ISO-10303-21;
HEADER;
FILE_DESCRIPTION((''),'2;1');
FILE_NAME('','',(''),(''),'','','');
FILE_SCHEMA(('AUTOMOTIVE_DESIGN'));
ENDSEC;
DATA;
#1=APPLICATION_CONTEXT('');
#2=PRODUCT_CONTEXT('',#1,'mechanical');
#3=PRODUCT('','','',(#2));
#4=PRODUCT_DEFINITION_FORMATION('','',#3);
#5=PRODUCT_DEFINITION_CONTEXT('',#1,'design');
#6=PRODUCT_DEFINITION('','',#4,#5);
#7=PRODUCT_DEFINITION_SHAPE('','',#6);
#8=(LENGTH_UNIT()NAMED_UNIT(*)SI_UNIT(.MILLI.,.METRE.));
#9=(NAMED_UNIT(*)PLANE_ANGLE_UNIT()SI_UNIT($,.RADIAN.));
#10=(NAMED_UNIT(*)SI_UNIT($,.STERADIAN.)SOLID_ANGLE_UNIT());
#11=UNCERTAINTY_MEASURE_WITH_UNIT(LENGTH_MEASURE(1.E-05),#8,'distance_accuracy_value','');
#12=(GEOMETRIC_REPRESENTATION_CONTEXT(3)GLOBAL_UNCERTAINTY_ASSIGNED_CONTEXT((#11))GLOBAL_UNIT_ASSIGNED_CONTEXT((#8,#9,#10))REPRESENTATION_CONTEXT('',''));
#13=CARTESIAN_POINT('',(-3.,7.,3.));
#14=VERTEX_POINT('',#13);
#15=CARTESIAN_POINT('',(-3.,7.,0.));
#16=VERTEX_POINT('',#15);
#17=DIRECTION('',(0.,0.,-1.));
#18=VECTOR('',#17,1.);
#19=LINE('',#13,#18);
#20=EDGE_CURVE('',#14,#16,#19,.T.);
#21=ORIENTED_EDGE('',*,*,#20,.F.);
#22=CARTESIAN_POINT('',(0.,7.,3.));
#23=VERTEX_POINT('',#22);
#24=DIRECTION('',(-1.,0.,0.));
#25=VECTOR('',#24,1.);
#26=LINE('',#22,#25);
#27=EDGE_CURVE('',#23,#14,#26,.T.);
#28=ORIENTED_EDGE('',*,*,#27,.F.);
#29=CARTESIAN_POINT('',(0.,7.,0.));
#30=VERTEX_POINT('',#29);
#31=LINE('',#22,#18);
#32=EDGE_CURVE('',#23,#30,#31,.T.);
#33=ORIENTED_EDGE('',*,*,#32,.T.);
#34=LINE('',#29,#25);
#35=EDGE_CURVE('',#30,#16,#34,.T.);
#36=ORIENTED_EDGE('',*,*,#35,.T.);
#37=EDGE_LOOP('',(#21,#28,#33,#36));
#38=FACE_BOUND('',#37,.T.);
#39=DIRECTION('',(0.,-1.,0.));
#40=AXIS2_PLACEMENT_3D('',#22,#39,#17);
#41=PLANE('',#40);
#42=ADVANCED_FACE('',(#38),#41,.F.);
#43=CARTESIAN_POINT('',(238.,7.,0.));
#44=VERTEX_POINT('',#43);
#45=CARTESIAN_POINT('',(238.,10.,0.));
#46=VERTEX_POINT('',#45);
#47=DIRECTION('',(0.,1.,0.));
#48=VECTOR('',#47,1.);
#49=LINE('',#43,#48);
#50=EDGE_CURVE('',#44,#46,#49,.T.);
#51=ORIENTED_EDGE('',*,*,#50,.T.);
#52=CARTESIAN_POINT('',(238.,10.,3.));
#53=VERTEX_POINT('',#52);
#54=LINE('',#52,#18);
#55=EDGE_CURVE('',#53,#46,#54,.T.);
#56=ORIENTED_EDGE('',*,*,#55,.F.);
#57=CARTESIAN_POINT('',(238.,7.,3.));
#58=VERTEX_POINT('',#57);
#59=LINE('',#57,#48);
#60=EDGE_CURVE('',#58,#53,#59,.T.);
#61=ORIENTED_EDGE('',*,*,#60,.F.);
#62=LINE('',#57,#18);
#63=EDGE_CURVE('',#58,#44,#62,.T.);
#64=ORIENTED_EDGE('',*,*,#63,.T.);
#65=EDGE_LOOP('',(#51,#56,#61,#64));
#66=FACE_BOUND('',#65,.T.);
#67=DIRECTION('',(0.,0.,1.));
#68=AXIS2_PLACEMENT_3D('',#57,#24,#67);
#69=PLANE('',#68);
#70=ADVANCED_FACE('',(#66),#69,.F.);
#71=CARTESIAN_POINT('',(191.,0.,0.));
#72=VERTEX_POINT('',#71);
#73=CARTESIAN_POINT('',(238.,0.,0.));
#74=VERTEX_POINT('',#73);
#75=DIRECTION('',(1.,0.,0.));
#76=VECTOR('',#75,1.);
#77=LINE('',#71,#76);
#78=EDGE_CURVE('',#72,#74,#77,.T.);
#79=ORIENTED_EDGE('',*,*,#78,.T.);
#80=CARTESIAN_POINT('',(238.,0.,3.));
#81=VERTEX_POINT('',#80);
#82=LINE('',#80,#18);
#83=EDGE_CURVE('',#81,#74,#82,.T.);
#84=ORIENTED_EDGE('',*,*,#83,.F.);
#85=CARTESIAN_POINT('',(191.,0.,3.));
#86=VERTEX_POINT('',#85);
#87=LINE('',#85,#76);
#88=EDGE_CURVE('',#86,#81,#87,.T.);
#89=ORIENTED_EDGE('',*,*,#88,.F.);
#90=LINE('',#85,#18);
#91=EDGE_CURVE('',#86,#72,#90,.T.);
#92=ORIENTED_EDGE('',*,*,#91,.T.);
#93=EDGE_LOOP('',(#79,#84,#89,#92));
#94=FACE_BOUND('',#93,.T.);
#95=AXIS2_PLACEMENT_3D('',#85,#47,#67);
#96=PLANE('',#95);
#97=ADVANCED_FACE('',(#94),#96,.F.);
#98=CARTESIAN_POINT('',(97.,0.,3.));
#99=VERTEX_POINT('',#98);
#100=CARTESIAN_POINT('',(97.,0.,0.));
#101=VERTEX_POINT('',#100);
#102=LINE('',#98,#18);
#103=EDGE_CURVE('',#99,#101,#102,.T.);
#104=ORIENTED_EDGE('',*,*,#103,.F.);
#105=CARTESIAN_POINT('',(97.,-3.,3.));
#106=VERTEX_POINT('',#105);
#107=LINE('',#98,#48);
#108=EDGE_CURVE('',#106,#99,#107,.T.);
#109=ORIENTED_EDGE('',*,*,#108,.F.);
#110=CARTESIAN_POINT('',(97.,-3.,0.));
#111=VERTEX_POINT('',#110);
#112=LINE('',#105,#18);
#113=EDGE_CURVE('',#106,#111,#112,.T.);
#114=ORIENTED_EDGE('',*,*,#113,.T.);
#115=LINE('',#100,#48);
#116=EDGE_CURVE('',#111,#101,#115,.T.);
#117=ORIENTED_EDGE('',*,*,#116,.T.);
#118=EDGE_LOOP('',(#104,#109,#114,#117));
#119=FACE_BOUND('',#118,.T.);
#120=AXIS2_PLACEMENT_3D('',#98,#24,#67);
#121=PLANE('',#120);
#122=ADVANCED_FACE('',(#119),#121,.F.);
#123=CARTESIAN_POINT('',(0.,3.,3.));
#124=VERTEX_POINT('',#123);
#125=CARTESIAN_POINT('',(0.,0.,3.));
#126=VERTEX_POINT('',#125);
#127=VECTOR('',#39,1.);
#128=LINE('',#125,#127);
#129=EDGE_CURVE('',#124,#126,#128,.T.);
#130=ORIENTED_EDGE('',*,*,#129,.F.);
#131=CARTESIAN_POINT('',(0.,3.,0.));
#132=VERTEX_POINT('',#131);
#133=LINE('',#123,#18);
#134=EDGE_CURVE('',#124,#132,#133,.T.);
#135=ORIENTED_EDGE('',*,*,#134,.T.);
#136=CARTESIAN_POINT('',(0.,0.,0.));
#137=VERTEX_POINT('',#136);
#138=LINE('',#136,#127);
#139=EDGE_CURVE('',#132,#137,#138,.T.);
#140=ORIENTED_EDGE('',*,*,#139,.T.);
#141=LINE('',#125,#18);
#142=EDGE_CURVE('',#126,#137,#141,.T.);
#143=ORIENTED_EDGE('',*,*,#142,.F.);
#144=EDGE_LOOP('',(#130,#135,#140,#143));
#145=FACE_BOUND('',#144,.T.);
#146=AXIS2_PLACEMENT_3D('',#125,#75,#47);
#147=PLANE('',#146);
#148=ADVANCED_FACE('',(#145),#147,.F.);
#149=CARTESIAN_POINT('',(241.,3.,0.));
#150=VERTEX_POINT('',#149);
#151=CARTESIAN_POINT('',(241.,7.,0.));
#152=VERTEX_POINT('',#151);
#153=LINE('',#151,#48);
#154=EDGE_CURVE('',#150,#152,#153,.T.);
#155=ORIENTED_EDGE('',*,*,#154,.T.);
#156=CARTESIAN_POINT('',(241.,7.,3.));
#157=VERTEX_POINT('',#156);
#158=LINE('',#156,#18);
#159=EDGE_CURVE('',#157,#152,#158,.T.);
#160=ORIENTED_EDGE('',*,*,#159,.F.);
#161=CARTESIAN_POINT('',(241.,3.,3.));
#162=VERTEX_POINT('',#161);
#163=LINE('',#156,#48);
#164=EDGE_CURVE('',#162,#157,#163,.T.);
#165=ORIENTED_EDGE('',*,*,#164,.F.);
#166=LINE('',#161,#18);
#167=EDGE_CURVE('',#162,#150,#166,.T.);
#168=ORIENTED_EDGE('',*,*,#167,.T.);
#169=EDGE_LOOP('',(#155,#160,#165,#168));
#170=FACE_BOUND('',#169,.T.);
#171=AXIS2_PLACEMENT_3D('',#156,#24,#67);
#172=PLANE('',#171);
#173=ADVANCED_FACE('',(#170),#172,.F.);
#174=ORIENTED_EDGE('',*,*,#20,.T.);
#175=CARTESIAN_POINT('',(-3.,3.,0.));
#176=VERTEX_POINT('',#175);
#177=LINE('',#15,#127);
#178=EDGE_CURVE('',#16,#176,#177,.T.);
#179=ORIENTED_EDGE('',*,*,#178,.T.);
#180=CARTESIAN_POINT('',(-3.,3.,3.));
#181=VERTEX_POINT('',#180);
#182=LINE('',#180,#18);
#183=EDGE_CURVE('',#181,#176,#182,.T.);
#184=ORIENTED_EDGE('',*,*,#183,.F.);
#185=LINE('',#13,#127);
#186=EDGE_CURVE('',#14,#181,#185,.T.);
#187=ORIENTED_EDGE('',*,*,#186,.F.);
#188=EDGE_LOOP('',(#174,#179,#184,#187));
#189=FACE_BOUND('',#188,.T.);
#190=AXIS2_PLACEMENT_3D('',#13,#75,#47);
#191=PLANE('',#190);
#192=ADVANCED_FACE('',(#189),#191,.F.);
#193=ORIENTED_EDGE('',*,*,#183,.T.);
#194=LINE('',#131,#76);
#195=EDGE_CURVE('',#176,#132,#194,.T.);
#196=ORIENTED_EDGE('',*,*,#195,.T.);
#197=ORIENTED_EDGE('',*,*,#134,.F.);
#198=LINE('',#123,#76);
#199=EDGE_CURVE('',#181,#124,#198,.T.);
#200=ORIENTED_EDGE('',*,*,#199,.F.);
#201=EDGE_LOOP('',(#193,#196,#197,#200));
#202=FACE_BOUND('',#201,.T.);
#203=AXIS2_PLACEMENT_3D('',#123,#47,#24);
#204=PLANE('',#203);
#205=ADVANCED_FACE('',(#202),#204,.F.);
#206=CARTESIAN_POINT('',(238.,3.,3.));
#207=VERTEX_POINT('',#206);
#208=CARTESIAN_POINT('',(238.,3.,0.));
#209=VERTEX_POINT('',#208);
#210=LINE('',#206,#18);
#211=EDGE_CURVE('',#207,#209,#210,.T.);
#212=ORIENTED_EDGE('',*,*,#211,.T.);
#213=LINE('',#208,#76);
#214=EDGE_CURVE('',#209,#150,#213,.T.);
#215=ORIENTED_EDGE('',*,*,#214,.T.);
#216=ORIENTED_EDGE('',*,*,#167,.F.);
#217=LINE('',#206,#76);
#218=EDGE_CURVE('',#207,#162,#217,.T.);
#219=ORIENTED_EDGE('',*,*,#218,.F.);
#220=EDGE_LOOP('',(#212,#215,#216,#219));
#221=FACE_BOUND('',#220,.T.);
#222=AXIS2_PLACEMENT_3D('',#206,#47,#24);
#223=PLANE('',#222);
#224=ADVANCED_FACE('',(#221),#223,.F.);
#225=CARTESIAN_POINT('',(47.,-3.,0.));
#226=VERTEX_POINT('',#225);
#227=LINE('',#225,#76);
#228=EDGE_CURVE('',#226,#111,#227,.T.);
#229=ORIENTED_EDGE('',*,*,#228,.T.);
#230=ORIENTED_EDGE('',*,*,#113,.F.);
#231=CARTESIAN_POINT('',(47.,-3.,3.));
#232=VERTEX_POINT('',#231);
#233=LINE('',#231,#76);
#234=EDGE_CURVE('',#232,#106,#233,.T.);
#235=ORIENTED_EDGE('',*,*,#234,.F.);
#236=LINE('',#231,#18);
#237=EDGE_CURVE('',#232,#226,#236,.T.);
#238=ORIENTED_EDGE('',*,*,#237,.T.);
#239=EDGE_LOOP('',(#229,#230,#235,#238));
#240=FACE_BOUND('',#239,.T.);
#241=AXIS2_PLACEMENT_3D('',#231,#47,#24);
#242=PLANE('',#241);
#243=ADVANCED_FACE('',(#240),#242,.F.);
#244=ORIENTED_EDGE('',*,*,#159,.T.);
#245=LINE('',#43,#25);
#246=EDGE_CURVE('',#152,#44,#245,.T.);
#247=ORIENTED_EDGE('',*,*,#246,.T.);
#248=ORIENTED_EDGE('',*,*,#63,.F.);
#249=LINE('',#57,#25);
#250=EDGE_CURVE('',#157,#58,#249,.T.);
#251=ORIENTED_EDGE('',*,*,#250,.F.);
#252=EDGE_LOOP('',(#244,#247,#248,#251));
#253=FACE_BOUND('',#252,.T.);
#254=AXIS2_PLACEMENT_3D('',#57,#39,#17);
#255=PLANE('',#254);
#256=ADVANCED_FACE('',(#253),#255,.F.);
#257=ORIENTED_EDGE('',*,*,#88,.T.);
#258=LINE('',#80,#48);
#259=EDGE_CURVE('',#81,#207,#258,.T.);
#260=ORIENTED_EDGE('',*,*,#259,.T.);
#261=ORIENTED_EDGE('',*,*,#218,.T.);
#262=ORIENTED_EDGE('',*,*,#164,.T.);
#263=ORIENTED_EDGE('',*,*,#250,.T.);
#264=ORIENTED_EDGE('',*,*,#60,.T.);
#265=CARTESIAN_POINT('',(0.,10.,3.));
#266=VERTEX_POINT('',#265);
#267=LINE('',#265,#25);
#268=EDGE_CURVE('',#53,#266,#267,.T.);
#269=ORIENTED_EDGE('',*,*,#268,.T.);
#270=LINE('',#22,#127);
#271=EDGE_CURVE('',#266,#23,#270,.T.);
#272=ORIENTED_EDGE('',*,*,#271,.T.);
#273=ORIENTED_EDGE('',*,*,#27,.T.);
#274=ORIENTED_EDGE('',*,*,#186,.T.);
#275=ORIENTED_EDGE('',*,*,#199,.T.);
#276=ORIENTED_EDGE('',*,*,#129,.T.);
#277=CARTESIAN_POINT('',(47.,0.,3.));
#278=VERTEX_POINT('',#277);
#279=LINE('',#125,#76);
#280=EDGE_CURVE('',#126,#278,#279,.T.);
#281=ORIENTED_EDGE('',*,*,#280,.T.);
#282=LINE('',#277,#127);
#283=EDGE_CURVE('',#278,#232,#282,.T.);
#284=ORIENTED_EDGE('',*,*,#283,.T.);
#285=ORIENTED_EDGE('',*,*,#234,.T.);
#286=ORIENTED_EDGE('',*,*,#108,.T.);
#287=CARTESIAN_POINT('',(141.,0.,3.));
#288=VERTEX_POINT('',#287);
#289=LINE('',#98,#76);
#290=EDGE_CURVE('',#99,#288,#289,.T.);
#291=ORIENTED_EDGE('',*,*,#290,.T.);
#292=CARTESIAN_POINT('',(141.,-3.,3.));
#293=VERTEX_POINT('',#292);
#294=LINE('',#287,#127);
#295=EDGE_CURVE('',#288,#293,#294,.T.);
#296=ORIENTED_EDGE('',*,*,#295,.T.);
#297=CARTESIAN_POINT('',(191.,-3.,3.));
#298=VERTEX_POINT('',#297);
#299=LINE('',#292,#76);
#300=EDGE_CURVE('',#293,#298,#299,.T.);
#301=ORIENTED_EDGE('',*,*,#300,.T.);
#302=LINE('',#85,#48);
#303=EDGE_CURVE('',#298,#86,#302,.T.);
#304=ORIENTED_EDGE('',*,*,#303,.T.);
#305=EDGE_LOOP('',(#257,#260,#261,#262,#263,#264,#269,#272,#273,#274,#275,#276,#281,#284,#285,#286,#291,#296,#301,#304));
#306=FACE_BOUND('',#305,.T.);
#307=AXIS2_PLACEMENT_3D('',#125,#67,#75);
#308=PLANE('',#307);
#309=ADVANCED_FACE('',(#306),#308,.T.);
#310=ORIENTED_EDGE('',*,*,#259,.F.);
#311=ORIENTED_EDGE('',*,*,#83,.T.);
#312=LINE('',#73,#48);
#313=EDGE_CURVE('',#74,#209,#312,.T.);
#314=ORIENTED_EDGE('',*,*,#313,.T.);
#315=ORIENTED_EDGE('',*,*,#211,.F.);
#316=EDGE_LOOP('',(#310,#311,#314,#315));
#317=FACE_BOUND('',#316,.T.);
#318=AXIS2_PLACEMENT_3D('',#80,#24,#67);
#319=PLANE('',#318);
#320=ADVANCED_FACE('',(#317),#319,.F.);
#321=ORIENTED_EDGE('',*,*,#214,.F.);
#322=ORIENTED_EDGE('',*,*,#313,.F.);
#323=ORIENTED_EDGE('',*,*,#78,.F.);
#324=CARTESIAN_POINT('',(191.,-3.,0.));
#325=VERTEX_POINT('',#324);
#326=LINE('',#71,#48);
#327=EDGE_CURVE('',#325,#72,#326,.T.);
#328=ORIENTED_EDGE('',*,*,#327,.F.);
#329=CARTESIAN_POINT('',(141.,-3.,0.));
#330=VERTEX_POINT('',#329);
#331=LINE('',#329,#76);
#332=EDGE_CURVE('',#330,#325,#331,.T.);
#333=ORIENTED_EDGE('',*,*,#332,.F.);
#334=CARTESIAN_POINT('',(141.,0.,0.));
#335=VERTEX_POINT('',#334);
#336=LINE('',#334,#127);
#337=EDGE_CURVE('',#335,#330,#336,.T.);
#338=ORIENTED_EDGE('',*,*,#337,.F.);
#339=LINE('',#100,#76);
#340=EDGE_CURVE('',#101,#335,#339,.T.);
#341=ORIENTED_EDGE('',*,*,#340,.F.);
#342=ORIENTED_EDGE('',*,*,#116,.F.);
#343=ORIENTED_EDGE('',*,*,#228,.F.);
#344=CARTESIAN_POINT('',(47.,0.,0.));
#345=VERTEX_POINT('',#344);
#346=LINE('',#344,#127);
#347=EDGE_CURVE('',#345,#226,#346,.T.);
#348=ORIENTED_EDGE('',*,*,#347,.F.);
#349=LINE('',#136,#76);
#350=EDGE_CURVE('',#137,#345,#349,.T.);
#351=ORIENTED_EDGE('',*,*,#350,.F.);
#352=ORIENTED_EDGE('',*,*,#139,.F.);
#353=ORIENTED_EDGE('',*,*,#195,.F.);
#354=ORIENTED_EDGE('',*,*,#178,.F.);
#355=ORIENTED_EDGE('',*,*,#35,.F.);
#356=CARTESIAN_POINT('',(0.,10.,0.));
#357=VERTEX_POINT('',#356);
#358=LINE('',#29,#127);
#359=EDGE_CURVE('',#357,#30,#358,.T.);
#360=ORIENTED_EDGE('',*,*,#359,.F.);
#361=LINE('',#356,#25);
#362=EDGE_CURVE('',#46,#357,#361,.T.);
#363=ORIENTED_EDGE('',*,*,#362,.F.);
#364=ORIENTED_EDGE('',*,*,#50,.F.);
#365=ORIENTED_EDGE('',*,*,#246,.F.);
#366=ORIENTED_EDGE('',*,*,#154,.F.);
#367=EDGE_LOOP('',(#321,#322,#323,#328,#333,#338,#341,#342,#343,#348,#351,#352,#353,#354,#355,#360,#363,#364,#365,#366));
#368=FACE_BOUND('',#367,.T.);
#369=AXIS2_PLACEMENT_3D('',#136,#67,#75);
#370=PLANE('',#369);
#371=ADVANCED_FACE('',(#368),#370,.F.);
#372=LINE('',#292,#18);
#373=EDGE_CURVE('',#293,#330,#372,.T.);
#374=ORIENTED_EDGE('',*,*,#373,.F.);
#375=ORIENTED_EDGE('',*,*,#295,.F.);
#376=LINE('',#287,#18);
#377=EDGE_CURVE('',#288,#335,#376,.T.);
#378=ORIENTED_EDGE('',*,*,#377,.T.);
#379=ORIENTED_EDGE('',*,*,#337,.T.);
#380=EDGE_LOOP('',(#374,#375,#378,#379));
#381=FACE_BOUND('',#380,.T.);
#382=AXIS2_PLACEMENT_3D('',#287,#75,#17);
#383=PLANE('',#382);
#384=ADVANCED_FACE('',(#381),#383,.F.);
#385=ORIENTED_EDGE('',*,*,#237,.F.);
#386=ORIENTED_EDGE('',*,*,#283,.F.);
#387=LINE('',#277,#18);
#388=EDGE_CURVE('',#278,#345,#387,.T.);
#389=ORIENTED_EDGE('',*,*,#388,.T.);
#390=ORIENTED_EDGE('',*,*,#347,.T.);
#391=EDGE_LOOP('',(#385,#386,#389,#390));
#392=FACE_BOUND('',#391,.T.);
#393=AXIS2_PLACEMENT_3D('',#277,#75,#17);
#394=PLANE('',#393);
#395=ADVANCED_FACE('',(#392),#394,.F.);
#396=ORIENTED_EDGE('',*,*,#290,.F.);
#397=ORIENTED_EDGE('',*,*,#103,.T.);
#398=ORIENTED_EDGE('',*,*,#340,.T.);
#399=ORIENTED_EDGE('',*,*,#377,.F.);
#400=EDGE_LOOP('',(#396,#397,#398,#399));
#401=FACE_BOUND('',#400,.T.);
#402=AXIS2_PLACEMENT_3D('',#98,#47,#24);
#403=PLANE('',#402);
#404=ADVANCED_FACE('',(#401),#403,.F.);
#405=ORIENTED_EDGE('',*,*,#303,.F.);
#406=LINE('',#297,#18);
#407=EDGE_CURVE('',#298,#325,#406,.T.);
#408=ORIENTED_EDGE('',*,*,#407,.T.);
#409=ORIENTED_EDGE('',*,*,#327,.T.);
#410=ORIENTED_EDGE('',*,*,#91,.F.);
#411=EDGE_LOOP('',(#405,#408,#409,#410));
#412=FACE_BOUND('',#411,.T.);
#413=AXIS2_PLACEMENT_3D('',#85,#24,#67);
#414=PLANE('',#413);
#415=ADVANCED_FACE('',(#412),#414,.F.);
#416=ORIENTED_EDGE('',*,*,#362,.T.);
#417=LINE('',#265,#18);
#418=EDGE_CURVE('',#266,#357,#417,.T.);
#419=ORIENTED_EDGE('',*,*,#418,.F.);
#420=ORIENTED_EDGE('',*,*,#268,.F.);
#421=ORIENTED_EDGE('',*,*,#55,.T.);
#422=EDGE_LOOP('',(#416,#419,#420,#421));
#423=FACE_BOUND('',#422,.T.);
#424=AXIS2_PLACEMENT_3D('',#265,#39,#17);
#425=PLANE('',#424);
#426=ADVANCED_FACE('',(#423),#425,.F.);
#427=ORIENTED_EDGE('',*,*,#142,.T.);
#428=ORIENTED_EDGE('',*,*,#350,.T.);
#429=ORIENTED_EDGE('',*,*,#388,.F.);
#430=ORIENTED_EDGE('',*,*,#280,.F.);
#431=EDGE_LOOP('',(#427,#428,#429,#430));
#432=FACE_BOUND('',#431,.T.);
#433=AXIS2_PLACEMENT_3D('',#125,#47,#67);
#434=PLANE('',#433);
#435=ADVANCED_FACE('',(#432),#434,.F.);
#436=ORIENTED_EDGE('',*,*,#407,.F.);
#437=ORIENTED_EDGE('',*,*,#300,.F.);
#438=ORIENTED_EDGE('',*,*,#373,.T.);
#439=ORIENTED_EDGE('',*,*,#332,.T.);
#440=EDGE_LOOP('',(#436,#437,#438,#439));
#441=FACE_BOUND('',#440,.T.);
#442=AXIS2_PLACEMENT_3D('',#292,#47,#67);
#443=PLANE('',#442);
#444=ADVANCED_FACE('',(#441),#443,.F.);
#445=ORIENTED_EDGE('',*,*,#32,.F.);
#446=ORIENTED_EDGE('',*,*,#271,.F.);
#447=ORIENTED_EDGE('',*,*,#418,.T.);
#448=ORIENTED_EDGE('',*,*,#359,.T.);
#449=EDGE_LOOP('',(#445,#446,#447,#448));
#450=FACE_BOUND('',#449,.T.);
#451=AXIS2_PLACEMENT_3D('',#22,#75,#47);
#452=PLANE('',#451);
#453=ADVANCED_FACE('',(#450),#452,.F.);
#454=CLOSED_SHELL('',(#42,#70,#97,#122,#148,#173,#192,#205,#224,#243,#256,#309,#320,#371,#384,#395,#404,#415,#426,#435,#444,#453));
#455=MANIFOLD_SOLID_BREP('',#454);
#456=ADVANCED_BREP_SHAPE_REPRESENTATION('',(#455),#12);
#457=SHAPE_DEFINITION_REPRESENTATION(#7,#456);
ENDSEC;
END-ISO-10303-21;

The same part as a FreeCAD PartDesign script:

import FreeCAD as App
import Part
import Sketcher


def add_polygon(sketch, points):
    """Adds a closed chain of lines whose ends are joined by coincident constraints."""
    first, n = sketch.GeometryCount, len(points)
    for a, b in zip(points, points[1:] + points[:1]):
        sketch.addGeometry(Part.LineSegment(App.Vector(*a, 0), App.Vector(*b, 0)), False)
    for i in range(n):
        sketch.addConstraint(Sketcher.Constraint("Coincident", first + i, 2, first + (i + 1) % n, 1))

doc = App.newDocument("Part")
params = doc.addObject("Spreadsheet::Sheet", "Params")
for row, (alias, value) in enumerate([
    ("sketch1_width", "44 mm"),
    ("sketch1_width2", "50 mm"),
    ("sketch1_width3", "47 mm"),
    ("sketch1_width4", "3 mm"),
    ("sketch1_height", "4 mm"),
    ("pad1_length", "3 mm"),
], start=1):
    params.set(f"A{row}", alias)
    params.set(f"B{row}", "=" + value)
    params.setAlias(f"B{row}", alias)

body = doc.addObject("PartDesign::Body", "Body")

# Sketch on XY plane
sketch1 = body.newObject("Sketcher::SketchObject", "Sketch")
sketch1.AttachmentSupport = (doc.getObject("XY_Plane"), [""])
sketch1.MapMode = "FlatFace"
add_polygon(sketch1, [(97, 0), (141, 0), (141, -3), (191, -3), (191, 0), (238, 0), (238, 3), (241, 3), (241, 7), (238, 7), (238, 10), (0, 10), (0, 7), (-3, 7), (-3, 3), (0, 3), (0, 0), (47, 0), (47, -3), (97, -3)])  # lines 0-19
sketch1.addConstraint([
    Sketcher.Constraint("Horizontal", 0),
    Sketcher.Constraint("Vertical", 1),
    Sketcher.Constraint("Horizontal", 2),
    Sketcher.Constraint("Vertical", 3),
    Sketcher.Constraint("Horizontal", 4),
    Sketcher.Constraint("Vertical", 5),
    Sketcher.Constraint("Horizontal", 6),
    Sketcher.Constraint("Vertical", 7),
    Sketcher.Constraint("Horizontal", 8),
    Sketcher.Constraint("Vertical", 9),
    Sketcher.Constraint("Horizontal", 10),
    Sketcher.Constraint("Vertical", 11),
    Sketcher.Constraint("Horizontal", 12),
    Sketcher.Constraint("Vertical", 13),
    Sketcher.Constraint("Horizontal", 14),
    Sketcher.Constraint("Vertical", 15),
    Sketcher.Constraint("Horizontal", 16),
    Sketcher.Constraint("Vertical", 17),
    Sketcher.Constraint("Horizontal", 18),
    Sketcher.Constraint("Vertical", 19),
    Sketcher.Constraint("Coincident", 15, 2, -1, 1),
    Sketcher.Constraint("PointOnObject", 0, 2, -1),
    Sketcher.Constraint("PointOnObject", 3, 2, -1),
    Sketcher.Constraint("PointOnObject", 10, 2, -2),
    Sketcher.Constraint("Horizontal", 8, 2, 11, 2),
    Sketcher.Constraint("Horizontal", 6, 2, 13, 2),
    Sketcher.Constraint("Horizontal", 2, 2, 17, 2),
    Sketcher.Constraint("Vertical", 5, 2, 8, 2),
    Sketcher.Constraint("Equal", 8, 12),
    Sketcher.Constraint("Equal", 4, 16),
    Sketcher.Constraint("Equal", 2, 18),
    Sketcher.Constraint("Equal", 14, 1),
    Sketcher.Constraint("Equal", 3, 5),
    Sketcher.Constraint("Equal", 5, 9),
    Sketcher.Constraint("DistanceX", 0, 1, 0, 2, 44.0),
    Sketcher.Constraint("DistanceX", 2, 1, 2, 2, 50.0),
    Sketcher.Constraint("DistanceX", 4, 1, 4, 2, 47.0),
    Sketcher.Constraint("DistanceX", 6, 1, 6, 2, 3.0),
    Sketcher.Constraint("DistanceY", 7, 1, 7, 2, 4.0),
])
sketch1.setExpression("Constraints[54]", "Params.sketch1_width")
sketch1.setExpression("Constraints[55]", "Params.sketch1_width2")
sketch1.setExpression("Constraints[56]", "Params.sketch1_width3")
sketch1.setExpression("Constraints[57]", "Params.sketch1_width4")
sketch1.setExpression("Constraints[58]", "Params.sketch1_height")
pad1 = body.newObject("PartDesign::Pad", "Pad")
pad1.Profile = sketch1
pad1.setExpression("Length", "Params.pad1_length")

doc.recompute()
